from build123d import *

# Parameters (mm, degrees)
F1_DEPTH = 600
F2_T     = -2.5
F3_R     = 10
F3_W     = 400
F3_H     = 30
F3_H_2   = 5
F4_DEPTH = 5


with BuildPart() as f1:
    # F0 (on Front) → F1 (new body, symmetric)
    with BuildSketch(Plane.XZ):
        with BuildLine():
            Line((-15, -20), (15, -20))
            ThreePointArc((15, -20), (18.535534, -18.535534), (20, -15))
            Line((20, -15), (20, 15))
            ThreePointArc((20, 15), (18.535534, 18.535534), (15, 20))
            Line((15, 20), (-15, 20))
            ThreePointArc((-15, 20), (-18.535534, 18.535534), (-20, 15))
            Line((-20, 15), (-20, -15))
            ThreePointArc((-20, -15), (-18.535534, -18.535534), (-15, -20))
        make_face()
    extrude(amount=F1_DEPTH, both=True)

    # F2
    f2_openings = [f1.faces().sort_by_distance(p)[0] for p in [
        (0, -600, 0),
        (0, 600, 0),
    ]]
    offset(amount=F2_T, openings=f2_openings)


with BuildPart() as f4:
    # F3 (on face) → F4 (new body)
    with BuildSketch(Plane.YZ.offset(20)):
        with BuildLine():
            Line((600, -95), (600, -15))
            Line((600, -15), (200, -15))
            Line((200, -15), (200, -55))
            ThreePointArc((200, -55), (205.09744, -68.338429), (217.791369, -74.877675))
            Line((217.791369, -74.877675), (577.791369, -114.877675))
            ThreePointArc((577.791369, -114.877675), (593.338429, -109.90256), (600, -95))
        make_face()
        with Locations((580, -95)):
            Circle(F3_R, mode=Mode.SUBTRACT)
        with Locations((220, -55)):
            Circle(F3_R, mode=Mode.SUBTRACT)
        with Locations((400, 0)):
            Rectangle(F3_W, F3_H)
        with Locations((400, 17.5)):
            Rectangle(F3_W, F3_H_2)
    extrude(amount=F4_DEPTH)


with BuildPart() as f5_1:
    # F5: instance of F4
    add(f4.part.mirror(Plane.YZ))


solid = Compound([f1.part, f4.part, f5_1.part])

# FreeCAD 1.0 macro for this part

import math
import FreeCAD as App
import Part
import Sketcher


def faces_at(feature, points):
    """Names of the faces that lie closest to the given points."""
    faces = feature.Shape.Faces
    near = lambda p: min(range(len(faces)), key=lambda i: faces[i].distToShape(Part.Vertex(*p))[0])
    return sorted({f"Face{near(p) + 1}" for p in points})

doc = App.newDocument("Part")
body = doc.addObject("PartDesign::Body", "Body")

sketch1 = doc.addObject("Sketcher::SketchObject", "Sketch")
body.addObject(sketch1)
sketch1.AttachmentSupport = (doc.XZ_Plane, [""])
sketch1.MapMode = "FlatFace"
sketch1.addGeometry([
    Part.LineSegment(App.Vector(-15, -20, 0), App.Vector(15, -20, 0)),
    Part.ArcOfCircle(Part.Circle(App.Vector(15, -15, 0), App.Vector(0, 0, 1), 5), math.radians(-90), math.radians(0)),
    Part.LineSegment(App.Vector(20, -15, 0), App.Vector(20, 15, 0)),
    Part.ArcOfCircle(Part.Circle(App.Vector(15, 15, 0), App.Vector(0, 0, 1), 5), math.radians(0), math.radians(90)),
    Part.LineSegment(App.Vector(15, 20, 0), App.Vector(-15, 20, 0)),
    Part.ArcOfCircle(Part.Circle(App.Vector(-15, 15, 0), App.Vector(0, 0, 1), 5), math.radians(90), math.radians(180)),
    Part.LineSegment(App.Vector(-20, 15, 0), App.Vector(-20, -15, 0)),
    Part.ArcOfCircle(Part.Circle(App.Vector(-15, -15, 0), App.Vector(0, 0, 1), 5), math.radians(180), math.radians(270)),
], False)
sketch1.addConstraint([
    Sketcher.Constraint("Tangent", 0, 2, 1, 1),
    Sketcher.Constraint("Tangent", 1, 2, 2, 1),
    Sketcher.Constraint("Tangent", 2, 2, 3, 1),
    Sketcher.Constraint("Tangent", 3, 2, 4, 1),
    Sketcher.Constraint("Tangent", 4, 2, 5, 1),
    Sketcher.Constraint("Tangent", 5, 2, 6, 1),
    Sketcher.Constraint("Tangent", 6, 2, 7, 1),
    Sketcher.Constraint("Tangent", 7, 2, 0, 1),
    Sketcher.Constraint("Horizontal", 0),
    Sketcher.Constraint("Vertical", 2),
    Sketcher.Constraint("Horizontal", 4),
    Sketcher.Constraint("Vertical", 6),
    Sketcher.Constraint("Equal", 1, 3),
    Sketcher.Constraint("Equal", 3, 5),
    Sketcher.Constraint("Equal", 5, 7),
    Sketcher.Constraint("Symmetric", 1, 3, 5, 3, -1, 1),
    Sketcher.Constraint("Equal", 4, 2),
    Sketcher.Constraint("Radius", 1, 5.0),
    Sketcher.Constraint("DistanceX", 0, 1, 0, 2, 30.0),
])
pad1 = doc.addObject("PartDesign::Pad", "Pad")
body.addObject(pad1)
pad1.Profile = sketch1
pad1.Length = 1200
pad1.Midplane = True
doc.recompute()

thickness = doc.addObject("PartDesign::Thickness", "Thickness")
body.addObject(thickness)
thickness.Base = (pad1, faces_at(pad1, [(0, -600, 0), (0, 600, 0)]))
thickness.Value = 2.5
thickness.Reversed = True
thickness.Join = "Arc"
body2 = doc.addObject("PartDesign::Body", "Body001")

sketch2 = doc.addObject("Sketcher::SketchObject", "Sketch001")
body2.addObject(sketch2)
sketch2.AttachmentSupport = (doc.getObject("YZ_Plane001"), [""])
sketch2.MapMode = "FlatFace"
sketch2.AttachmentOffset = App.Placement(App.Vector(0, 0, 20), App.Rotation())
sketch2.addGeometry([
    Part.LineSegment(App.Vector(600, -95, 0), App.Vector(600, 20, 0)),
    Part.LineSegment(App.Vector(600, 20, 0), App.Vector(200, 20, 0)),
    Part.LineSegment(App.Vector(200, 20, 0), App.Vector(200, -55, 0)),
    Part.ArcOfCircle(Part.Circle(App.Vector(220, -55, 0), App.Vector(0, 0, 1), 20), math.radians(-180), math.radians(-96)),
    Part.LineSegment(App.Vector(218, -75, 0), App.Vector(578, -115, 0)),
    Part.ArcOfCircle(Part.Circle(App.Vector(580, -95, 0), App.Vector(0, 0, 1), 20), math.radians(-96), math.radians(0)),
    Part.Circle(App.Vector(580, -95, 0), App.Vector(0, 0, 1), 10),
    Part.Circle(App.Vector(220, -55, 0), App.Vector(0, 0, 1), 10),
], False)
sketch2.addConstraint([
    Sketcher.Constraint("Coincident", 0, 2, 1, 1),
    Sketcher.Constraint("Coincident", 1, 2, 2, 1),
    Sketcher.Constraint("Tangent", 2, 2, 3, 1),
    Sketcher.Constraint("Tangent", 3, 2, 4, 1),
    Sketcher.Constraint("Tangent", 4, 2, 5, 1),
    Sketcher.Constraint("Tangent", 5, 2, 0, 1),
    Sketcher.Constraint("Vertical", 0),
    Sketcher.Constraint("Horizontal", 1),
    Sketcher.Constraint("Vertical", 2),
    Sketcher.Constraint("Coincident", 6, 3, 5, 3),
    Sketcher.Constraint("Coincident", 7, 3, 3, 3),
    Sketcher.Constraint("Equal", 3, 5),
    Sketcher.Constraint("Equal", 6, 7),
    Sketcher.Constraint("Diameter", 6, 20.0),
    Sketcher.Constraint("Radius", 3, 20.000002),
    Sketcher.Constraint("DistanceX", 1, 2, 1, 1, 400.0),
    Sketcher.Constraint("DistanceY", 0, 1, 0, 2, 115.0),
    Sketcher.Constraint("DistanceY", 2, 2, 2, 1, 75.0),
    Sketcher.Constraint("DistanceX", -1, 1, 3, 3, 220.000002),
    Sketcher.Constraint("DistanceY", 3, 3, -1, 1, 54.999999),
])
pad2 = doc.addObject("PartDesign::Pad", "Pad001")
body2.addObject(pad2)
pad2.Profile = sketch2
pad2.Length = 5
body3 = doc.addObject("PartDesign::Body", "Body002")
doc.recompute()

mirroring = doc.addObject("Part::Mirroring", "Mirroring")
mirroring.Source = body2
mirroring.Base = App.Vector(0, 0, 0)
mirroring.Normal = App.Vector(1, 0, 0)
body3.BaseFeature = mirroring
doc.recompute()
mirroring.Visibility = False

doc.recompute()
